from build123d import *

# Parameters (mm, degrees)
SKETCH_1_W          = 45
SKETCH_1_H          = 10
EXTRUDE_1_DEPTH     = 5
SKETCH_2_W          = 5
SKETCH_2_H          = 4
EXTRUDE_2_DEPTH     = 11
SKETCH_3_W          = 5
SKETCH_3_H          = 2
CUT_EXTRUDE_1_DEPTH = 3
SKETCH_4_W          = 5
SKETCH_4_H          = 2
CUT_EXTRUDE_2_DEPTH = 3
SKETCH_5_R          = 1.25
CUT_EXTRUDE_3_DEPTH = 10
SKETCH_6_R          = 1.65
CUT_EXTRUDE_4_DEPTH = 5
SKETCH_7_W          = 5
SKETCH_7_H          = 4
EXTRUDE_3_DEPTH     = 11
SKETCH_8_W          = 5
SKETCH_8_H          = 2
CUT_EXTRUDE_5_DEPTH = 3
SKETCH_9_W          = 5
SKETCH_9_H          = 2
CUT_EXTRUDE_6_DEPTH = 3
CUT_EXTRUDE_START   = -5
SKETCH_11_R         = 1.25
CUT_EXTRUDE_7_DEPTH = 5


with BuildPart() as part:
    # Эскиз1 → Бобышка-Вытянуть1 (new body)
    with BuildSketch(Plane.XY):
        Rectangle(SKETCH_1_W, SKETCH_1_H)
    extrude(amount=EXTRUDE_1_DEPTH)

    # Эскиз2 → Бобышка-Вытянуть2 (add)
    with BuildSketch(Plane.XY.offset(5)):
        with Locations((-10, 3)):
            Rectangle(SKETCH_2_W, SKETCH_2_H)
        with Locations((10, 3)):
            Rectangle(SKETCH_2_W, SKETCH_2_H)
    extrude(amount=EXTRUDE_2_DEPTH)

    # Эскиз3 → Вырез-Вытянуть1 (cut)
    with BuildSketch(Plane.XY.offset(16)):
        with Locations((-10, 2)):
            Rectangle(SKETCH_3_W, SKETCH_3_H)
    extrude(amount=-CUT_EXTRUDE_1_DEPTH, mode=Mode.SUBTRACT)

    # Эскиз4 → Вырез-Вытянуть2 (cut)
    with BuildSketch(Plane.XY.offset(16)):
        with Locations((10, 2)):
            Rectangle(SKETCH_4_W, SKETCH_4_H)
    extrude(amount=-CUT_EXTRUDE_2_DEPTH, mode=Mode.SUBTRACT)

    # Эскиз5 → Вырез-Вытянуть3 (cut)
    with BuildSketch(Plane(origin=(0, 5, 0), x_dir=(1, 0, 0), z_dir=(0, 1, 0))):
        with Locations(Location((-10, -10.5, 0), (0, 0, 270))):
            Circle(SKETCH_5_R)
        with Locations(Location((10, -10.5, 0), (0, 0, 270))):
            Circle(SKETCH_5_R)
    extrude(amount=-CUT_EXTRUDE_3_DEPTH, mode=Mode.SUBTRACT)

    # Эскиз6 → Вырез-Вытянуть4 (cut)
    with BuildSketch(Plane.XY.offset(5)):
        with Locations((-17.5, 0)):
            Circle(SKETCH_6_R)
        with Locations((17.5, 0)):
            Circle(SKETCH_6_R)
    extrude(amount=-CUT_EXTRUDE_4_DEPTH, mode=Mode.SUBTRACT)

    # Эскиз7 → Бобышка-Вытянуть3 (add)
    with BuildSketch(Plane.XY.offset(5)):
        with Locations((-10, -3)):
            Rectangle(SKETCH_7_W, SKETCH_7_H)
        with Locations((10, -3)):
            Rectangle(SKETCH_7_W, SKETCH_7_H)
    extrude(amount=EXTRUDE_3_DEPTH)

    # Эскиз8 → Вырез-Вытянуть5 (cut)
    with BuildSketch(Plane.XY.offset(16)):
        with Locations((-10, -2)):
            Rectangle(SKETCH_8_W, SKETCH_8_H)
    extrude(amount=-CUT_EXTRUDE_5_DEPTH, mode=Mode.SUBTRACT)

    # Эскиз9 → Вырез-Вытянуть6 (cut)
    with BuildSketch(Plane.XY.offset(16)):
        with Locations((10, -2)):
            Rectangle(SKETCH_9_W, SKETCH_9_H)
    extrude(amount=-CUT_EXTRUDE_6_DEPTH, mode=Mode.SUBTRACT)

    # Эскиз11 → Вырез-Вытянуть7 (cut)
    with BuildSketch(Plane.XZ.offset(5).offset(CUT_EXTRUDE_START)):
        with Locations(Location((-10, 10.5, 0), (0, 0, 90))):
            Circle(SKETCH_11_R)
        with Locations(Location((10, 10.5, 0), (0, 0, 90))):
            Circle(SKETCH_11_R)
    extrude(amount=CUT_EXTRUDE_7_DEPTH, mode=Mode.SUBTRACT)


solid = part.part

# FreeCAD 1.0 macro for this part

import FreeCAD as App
import Part
import Sketcher

V = App.Vector
Q = App.Units.Quantity


def add_polygon(sketch, points):
    """Adds a closed chain of lines whose ends are joined by coincident constraints."""
    first, n = sketch.GeometryCount, len(points)
    for a, b in zip(points, points[1:] + points[:1]):
        sketch.addGeometry(Part.LineSegment(App.Vector(*a, 0), App.Vector(*b, 0)), False)
    for i in range(n):
        sketch.addConstraint(Sketcher.Constraint("Coincident", first + i, 2, first + (i + 1) % n, 1))

doc = App.newDocument("Part")
body = doc.addObject("PartDesign::Body", "Body")

sketch1 = body.newObject("Sketcher::SketchObject", "Sketch")
sketch1.AttachmentSupport = (doc.getObject("XY_Plane"), [""])
sketch1.MapMode = "FlatFace"
add_polygon(sketch1, [(-22.5, 5), (-22.5, -5), (22.5, -5), (22.5, 5)])
sketch1.addConstraint([
    Sketcher.Constraint("Vertical", 0),
    Sketcher.Constraint("Horizontal", 1),
    Sketcher.Constraint("Vertical", 2),
    Sketcher.Constraint("Horizontal", 3),
    Sketcher.Constraint("Symmetric", 0, 2, 2, 2, -1, 1),
    Sketcher.Constraint("DistanceX", 1, 1, 1, 2, Q("45 mm")),
    Sketcher.Constraint("DistanceY", 0, 2, 0, 1, Q("10 mm")),
])
pad1 = body.newObject("PartDesign::Pad", "Pad")
pad1.Profile = sketch1
pad1.Length = 5

sketch2 = body.newObject("Sketcher::SketchObject", "Sketch001")
sketch2.AttachmentSupport = (doc.getObject("XY_Plane"), [""])
sketch2.MapMode = "FlatFace"
sketch2.AttachmentOffset = App.Placement(V(0, 0, 5), App.Rotation())
add_polygon(sketch2, [(-12.5, 5), (-12.5, 1), (-7.5, 1), (-7.5, 5)])
add_polygon(sketch2, [(7.5, 5), (7.5, 1), (12.5, 1), (12.5, 5)])
sketch2.addConstraint([
    Sketcher.Constraint("Vertical", 0),
    Sketcher.Constraint("Horizontal", 1),
    Sketcher.Constraint("Vertical", 2),
    Sketcher.Constraint("Horizontal", 3),
    Sketcher.Constraint("Vertical", 4),
    Sketcher.Constraint("Horizontal", 5),
    Sketcher.Constraint("Vertical", 6),
    Sketcher.Constraint("Horizontal", 7),
    Sketcher.Constraint("Symmetric", 1, 2, 4, 2, -2),
    Sketcher.Constraint("Symmetric", 3, 2, 6, 2, -2),
    Sketcher.Constraint("DistanceX", 1, 1, 1, 2, Q("5 mm")),
    Sketcher.Constraint("DistanceY", 0, 2, 0, 1, Q("4 mm")),
    Sketcher.Constraint("DistanceY", -1, 1, 0, 2, Q("1 mm")),
    Sketcher.Constraint("DistanceX", 1, 2, 4, 2, Q("15 mm")),
])
pad2 = body.newObject("PartDesign::Pad", "Pad001")
pad2.Profile = sketch2
pad2.Length = 11

sketch3 = body.newObject("Sketcher::SketchObject", "Sketch002")
sketch3.AttachmentSupport = (doc.getObject("XY_Plane"), [""])
sketch3.MapMode = "FlatFace"
sketch3.AttachmentOffset = App.Placement(V(0, 0, 16), App.Rotation())
add_polygon(sketch3, [(-12.5, 3), (-12.5, 1), (-7.5, 1), (-7.5, 3)])
sketch3.addConstraint([
    Sketcher.Constraint("Vertical", 0),
    Sketcher.Constraint("Horizontal", 1),
    Sketcher.Constraint("Vertical", 2),
    Sketcher.Constraint("Horizontal", 3),
    Sketcher.Constraint("DistanceX", 1, 1, 1, 2, Q("5 mm")),
    Sketcher.Constraint("DistanceY", 0, 2, 0, 1, Q("2 mm")),
    Sketcher.Constraint("DistanceY", -1, 1, 0, 2, Q("1 mm")),
    Sketcher.Constraint("DistanceX", 0, 2, -1, 1, Q("12.5 mm")),
])
pocket1 = body.newObject("PartDesign::Pocket", "Pocket")
pocket1.Profile = sketch3
pocket1.Length = 3

sketch4 = body.newObject("Sketcher::SketchObject", "Sketch003")
sketch4.AttachmentSupport = (doc.getObject("XY_Plane"), [""])
sketch4.MapMode = "FlatFace"
sketch4.AttachmentOffset = App.Placement(V(0, 0, 16), App.Rotation())
add_polygon(sketch4, [(7.5, 3), (7.5, 1), (12.5, 1), (12.5, 3)])
sketch4.addConstraint([
    Sketcher.Constraint("Vertical", 0),
    Sketcher.Constraint("Horizontal", 1),
    Sketcher.Constraint("Vertical", 2),
    Sketcher.Constraint("Horizontal", 3),
    Sketcher.Constraint("DistanceX", 1, 1, 1, 2, Q("5 mm")),
    Sketcher.Constraint("DistanceY", 0, 2, 0, 1, Q("2 mm")),
    Sketcher.Constraint("DistanceY", -1, 1, 0, 2, Q("1 mm")),
    Sketcher.Constraint("DistanceX", -1, 1, 0, 2, Q("7.5 mm")),
])
pocket2 = body.newObject("PartDesign::Pocket", "Pocket001")
pocket2.Profile = sketch4
pocket2.Length = 3

sketch5 = body.newObject("Sketcher::SketchObject", "Sketch004")
sketch5.AttachmentSupport = (doc.getObject("XZ_Plane"), [""])
sketch5.MapMode = "FlatFace"
sketch5.AttachmentOffset = App.Placement(V(0, 0, -5), App.Rotation())
sketch5.addGeometry([
    Part.Circle(V(-10, 10.5, 0), V(0, 0, 1), 1.25),
    Part.Circle(V(10, 10.5, 0), V(0, 0, 1), 1.25),
], False)
sketch5.addConstraint([
    Sketcher.Constraint("Equal", 0, 1),
    Sketcher.Constraint("Symmetric", 0, 3, 1, 3, -2),
    Sketcher.Constraint("Diameter", 0, Q("2.5 mm")),
    Sketcher.Constraint("DistanceX", 0, 3, -1, 1, Q("10 mm")),
    Sketcher.Constraint("DistanceY", -1, 1, 0, 3, Q("10.5 mm")),
])
pocket3 = body.newObject("PartDesign::Pocket", "Pocket002")
pocket3.Profile = sketch5
pocket3.Length = 10
pocket3.Reversed = True

sketch6 = body.newObject("Sketcher::SketchObject", "Sketch005")
sketch6.AttachmentSupport = (doc.getObject("XY_Plane"), [""])
sketch6.MapMode = "FlatFace"
sketch6.AttachmentOffset = App.Placement(V(0, 0, 5), App.Rotation())
sketch6.addGeometry([
    Part.Circle(V(-17.5, 0, 0), V(0, 0, 1), 1.65),
    Part.Circle(V(17.5, 0, 0), V(0, 0, 1), 1.65),
], False)
sketch6.addConstraint([
    Sketcher.Constraint("Equal", 0, 1),
    Sketcher.Constraint("Symmetric", 0, 3, 1, 3, -1, 1),
    Sketcher.Constraint("PointOnObject", 0, 3, -1),
    Sketcher.Constraint("Diameter", 0, Q("3.3 mm")),
    Sketcher.Constraint("DistanceX", 0, 3, 1, 3, Q("35 mm")),
])
pocket4 = body.newObject("PartDesign::Pocket", "Pocket003")
pocket4.Profile = sketch6
pocket4.Length = 5

sketch7 = body.newObject("Sketcher::SketchObject", "Sketch006")
sketch7.AttachmentSupport = (doc.getObject("XY_Plane"), [""])
sketch7.MapMode = "FlatFace"
sketch7.AttachmentOffset = App.Placement(V(0, 0, 5), App.Rotation())
add_polygon(sketch7, [(-12.5, -1), (-12.5, -5), (-7.5, -5), (-7.5, -1)])
add_polygon(sketch7, [(7.5, -1), (7.5, -5), (12.5, -5), (12.5, -1)])
sketch7.addConstraint([
    Sketcher.Constraint("Vertical", 0),
    Sketcher.Constraint("Horizontal", 1),
    Sketcher.Constraint("Vertical", 2),
    Sketcher.Constraint("Horizontal", 3),
    Sketcher.Constraint("Vertical", 4),
    Sketcher.Constraint("Horizontal", 5),
    Sketcher.Constraint("Vertical", 6),
    Sketcher.Constraint("Horizontal", 7),
    Sketcher.Constraint("Symmetric", 1, 2, 4, 2, -2),
    Sketcher.Constraint("Symmetric", 3, 2, 6, 2, -2),
    Sketcher.Constraint("DistanceX", 1, 1, 1, 2, Q("5 mm")),
    Sketcher.Constraint("DistanceY", 0, 2, 0, 1, Q("4 mm")),
    Sketcher.Constraint("DistanceY", 0, 2, -1, 1, Q("5 mm")),
    Sketcher.Constraint("DistanceX", 1, 2, 4, 2, Q("15 mm")),
])
pad3 = body.newObject("PartDesign::Pad", "Pad002")
pad3.Profile = sketch7
pad3.Length = 11

sketch8 = body.newObject("Sketcher::SketchObject", "Sketch007")
sketch8.AttachmentSupport = (doc.getObject("XY_Plane"), [""])
sketch8.MapMode = "FlatFace"
sketch8.AttachmentOffset = App.Placement(V(0, 0, 16), App.Rotation())
add_polygon(sketch8, [(-12.5, -1), (-12.5, -3), (-7.5, -3), (-7.5, -1)])
sketch8.addConstraint([
    Sketcher.Constraint("Vertical", 0),
    Sketcher.Constraint("Horizontal", 1),
    Sketcher.Constraint("Vertical", 2),
    Sketcher.Constraint("Horizontal", 3),
    Sketcher.Constraint("DistanceX", 1, 1, 1, 2, Q("5 mm")),
    Sketcher.Constraint("DistanceY", 0, 2, 0, 1, Q("2 mm")),
    Sketcher.Constraint("DistanceY", 0, 2, -1, 1, Q("3 mm")),
    Sketcher.Constraint("DistanceX", 0, 2, -1, 1, Q("12.5 mm")),
])
pocket5 = body.newObject("PartDesign::Pocket", "Pocket004")
pocket5.Profile = sketch8
pocket5.Length = 3

sketch9 = body.newObject("Sketcher::SketchObject", "Sketch008")
sketch9.AttachmentSupport = (doc.getObject("XY_Plane"), [""])
sketch9.MapMode = "FlatFace"
sketch9.AttachmentOffset = App.Placement(V(0, 0, 16), App.Rotation())
add_polygon(sketch9, [(7.5, -1), (7.5, -3), (12.5, -3), (12.5, -1)])
sketch9.addConstraint([
    Sketcher.Constraint("Vertical", 0),
    Sketcher.Constraint("Horizontal", 1),
    Sketcher.Constraint("Vertical", 2),
    Sketcher.Constraint("Horizontal", 3),
    Sketcher.Constraint("DistanceX", 1, 1, 1, 2, Q("5 mm")),
    Sketcher.Constraint("DistanceY", 0, 2, 0, 1, Q("2 mm")),
    Sketcher.Constraint("DistanceY", 0, 2, -1, 1, Q("3 mm")),
    Sketcher.Constraint("DistanceX", -1, 1, 0, 2, Q("7.5 mm")),
])
pocket6 = body.newObject("PartDesign::Pocket", "Pocket005")
pocket6.Profile = sketch9
pocket6.Length = 3

sketch10 = body.newObject("Sketcher::SketchObject", "Sketch009")
sketch10.AttachmentSupport = (doc.getObject("XZ_Plane"), [""])
sketch10.MapMode = "FlatFace"
sketch10.addGeometry([
    Part.Circle(V(-10, 10.5, 0), V(0, 0, 1), 1.25),
    Part.Circle(V(10, 10.5, 0), V(0, 0, 1), 1.25),
], False)
sketch10.addConstraint([
    Sketcher.Constraint("Equal", 0, 1),
    Sketcher.Constraint("Symmetric", 0, 3, 1, 3, -2),
    Sketcher.Constraint("Diameter", 0, Q("2.5 mm")),
    Sketcher.Constraint("DistanceX", 0, 3, -1, 1, Q("10 mm")),
    Sketcher.Constraint("DistanceY", -1, 1, 0, 3, Q("10.5 mm")),
])
pocket7 = body.newObject("PartDesign::Pocket", "Pocket006")
pocket7.Profile = sketch10
pocket7.Length = 5
pocket7.Reversed = True

doc.recompute()
